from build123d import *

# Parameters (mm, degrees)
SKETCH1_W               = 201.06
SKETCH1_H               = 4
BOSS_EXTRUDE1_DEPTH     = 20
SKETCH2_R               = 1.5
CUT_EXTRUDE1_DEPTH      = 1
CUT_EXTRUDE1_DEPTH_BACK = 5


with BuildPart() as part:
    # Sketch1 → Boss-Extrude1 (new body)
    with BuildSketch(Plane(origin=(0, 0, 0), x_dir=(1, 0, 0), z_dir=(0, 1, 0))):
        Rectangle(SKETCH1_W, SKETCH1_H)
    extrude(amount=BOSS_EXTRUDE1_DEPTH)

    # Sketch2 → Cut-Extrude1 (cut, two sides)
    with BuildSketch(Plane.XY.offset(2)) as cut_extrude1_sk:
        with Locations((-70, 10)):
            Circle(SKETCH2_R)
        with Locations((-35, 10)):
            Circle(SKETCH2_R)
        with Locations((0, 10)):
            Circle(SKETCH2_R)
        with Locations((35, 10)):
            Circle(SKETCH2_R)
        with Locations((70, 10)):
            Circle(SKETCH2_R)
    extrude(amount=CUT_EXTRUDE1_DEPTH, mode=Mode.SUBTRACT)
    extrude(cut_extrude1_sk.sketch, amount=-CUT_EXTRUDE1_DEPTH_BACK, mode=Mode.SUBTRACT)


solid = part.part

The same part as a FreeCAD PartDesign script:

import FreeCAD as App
import Part
import Sketcher

V = App.Vector


def add_polygon(sketch, points):
    """Adds a closed chain of lines whose ends are joined by coincident constraints."""
    first, n = sketch.GeometryCount, len(points)
    for a, b in zip(points, points[1:] + points[:1]):
        sketch.addGeometry(Part.LineSegment(App.Vector(*a, 0), App.Vector(*b, 0)), False)
    for i in range(n):
        sketch.addConstraint(Sketcher.Constraint("Coincident", first + i, 2, first + (i + 1) % n, 1))

doc = App.newDocument("Part")
body = doc.addObject("PartDesign::Body", "Body")

sketch1 = body.newObject("Sketcher::SketchObject", "Sketch")
sketch1.AttachmentSupport = (doc.getObject("XZ_Plane"), [""])
sketch1.MapMode = "FlatFace"
add_polygon(sketch1, [(-100.53, -2), (-100.53, 2), (100.53, 2), (100.53, -2)])
sketch1.addConstraint(Sketcher.Constraint("Vertical", 0))
sketch1.addConstraint(Sketcher.Constraint("Horizontal", 1))
sketch1.addConstraint(Sketcher.Constraint("Vertical", 2))
sketch1.addConstraint(Sketcher.Constraint("Horizontal", 3))
sketch1.addConstraint(Sketcher.Constraint("Symmetric", 0, 2, 2, 2, -1, 1))
sketch1.addConstraint(Sketcher.Constraint("DistanceY", 0, 1, 0, 2, 4.0))
sketch1.addConstraint(Sketcher.Constraint("DistanceX", 1, 1, 1, 2, 201.06))
pad1 = body.newObject("PartDesign::Pad", "Pad")
pad1.Profile = sketch1
pad1.Length = 20
pad1.Reversed = True

sketch2 = body.newObject("Sketcher::SketchObject", "Sketch001")
sketch2.AttachmentSupport = (doc.getObject("XY_Plane"), [""])
sketch2.MapMode = "FlatFace"
sketch2.AttachmentOffset = App.Placement(V(0, 0, 2), App.Rotation())
sketch2.addGeometry(Part.Circle(V(-70, 10, 0), V(0, 0, 1), 1.5), False)
sketch2.addGeometry(Part.Circle(V(-35, 10, 0), V(0, 0, 1), 1.5), False)
sketch2.addGeometry(Part.Circle(V(0, 10, 0), V(0, 0, 1), 1.5), False)
sketch2.addGeometry(Part.Circle(V(35, 10, 0), V(0, 0, 1), 1.5), False)
sketch2.addGeometry(Part.Circle(V(70, 10, 0), V(0, 0, 1), 1.5), False)
sketch2.addConstraint(Sketcher.Constraint("Equal", 0, 1))
sketch2.addConstraint(Sketcher.Constraint("Equal", 1, 2))
sketch2.addConstraint(Sketcher.Constraint("Equal", 2, 3))
sketch2.addConstraint(Sketcher.Constraint("Equal", 3, 4))
sketch2.addConstraint(Sketcher.Constraint("Symmetric", 1, 3, 3, 3, -2))
sketch2.addConstraint(Sketcher.Constraint("Symmetric", 0, 3, 4, 3, -2))
sketch2.addConstraint(Sketcher.Constraint("PointOnObject", 2, 3, -2))
sketch2.addConstraint(Sketcher.Constraint("Horizontal", 0, 3, 1, 3))
sketch2.addConstraint(Sketcher.Constraint("Horizontal", 1, 3, 2, 3))
sketch2.addConstraint(Sketcher.Constraint("Diameter", 0, 3.0))
sketch2.addConstraint(Sketcher.Constraint("DistanceX", 0, 3, -1, 1, 70.0))
sketch2.addConstraint(Sketcher.Constraint("DistanceY", -1, 1, 0, 3, 10.0))
sketch2.addConstraint(Sketcher.Constraint("DistanceX", 1, 3, -1, 1, 35.0))
pocket1 = body.newObject("PartDesign::Pocket", "Pocket")
pocket1.Profile = sketch2
pocket1.Type = "ThroughAll"
pocket1.Midplane = True

doc.recompute()
